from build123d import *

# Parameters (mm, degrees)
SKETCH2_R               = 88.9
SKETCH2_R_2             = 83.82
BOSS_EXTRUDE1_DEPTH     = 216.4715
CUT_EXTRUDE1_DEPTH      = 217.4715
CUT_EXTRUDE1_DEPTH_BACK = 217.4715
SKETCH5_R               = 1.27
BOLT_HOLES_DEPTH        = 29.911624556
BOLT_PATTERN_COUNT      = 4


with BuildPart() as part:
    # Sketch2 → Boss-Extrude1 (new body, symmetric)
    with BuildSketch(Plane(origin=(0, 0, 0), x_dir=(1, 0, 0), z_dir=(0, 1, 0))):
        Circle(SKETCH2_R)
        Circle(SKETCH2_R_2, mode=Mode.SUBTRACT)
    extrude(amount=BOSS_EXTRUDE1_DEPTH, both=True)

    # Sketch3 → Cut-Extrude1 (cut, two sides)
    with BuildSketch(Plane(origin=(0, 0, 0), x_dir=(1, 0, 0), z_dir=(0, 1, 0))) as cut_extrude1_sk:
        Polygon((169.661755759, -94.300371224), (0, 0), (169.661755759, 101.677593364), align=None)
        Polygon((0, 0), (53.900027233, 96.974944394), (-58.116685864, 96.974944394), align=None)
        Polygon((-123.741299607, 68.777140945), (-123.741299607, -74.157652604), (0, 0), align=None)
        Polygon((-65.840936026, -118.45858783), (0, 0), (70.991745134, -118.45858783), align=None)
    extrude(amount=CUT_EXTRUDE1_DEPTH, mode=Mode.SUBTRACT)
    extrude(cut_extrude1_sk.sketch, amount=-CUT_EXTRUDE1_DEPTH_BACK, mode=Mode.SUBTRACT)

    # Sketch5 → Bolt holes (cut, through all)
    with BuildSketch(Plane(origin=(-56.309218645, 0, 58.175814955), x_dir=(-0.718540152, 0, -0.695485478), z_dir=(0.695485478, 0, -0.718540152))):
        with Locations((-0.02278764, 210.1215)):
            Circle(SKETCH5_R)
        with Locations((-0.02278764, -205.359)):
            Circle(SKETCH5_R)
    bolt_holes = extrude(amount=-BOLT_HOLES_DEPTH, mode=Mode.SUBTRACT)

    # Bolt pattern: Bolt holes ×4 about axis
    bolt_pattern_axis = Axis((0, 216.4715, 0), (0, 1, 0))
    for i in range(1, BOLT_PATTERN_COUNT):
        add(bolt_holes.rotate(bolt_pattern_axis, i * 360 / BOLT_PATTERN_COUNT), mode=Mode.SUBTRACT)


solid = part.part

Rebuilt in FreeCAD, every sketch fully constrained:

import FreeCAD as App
import Part
import Sketcher
Q = App.Units.Quantity

doc = App.newDocument("Part")
body = doc.addObject("PartDesign::Body", "Body")
body.AllowCompound = True

sketch1 = body.newObject("Sketcher::SketchObject", "Sketch")
sketch1.AttachmentSupport = (doc.getObject("XZ_Plane"), [""])
sketch1.MapMode = "FlatFace"
sketch1.addGeometry(Part.Circle(App.Vector(0, 0, 0), App.Vector(0, 0, 1), 89), False)
sketch1.addGeometry(Part.Circle(App.Vector(0, 0, 0), App.Vector(0, 0, 1), 84), False)
sketch1.addConstraint(Sketcher.Constraint("Coincident", 0, 3, -1, 1))
sketch1.addConstraint(Sketcher.Constraint("Coincident", 1, 3, -1, 1))
sketch1.addConstraint(Sketcher.Constraint("Diameter", 0, Q("7 in")))
sketch1.addConstraint(Sketcher.Constraint("Diameter", 1, Q("6.6 in")))
pad1 = body.newObject("PartDesign::Pad", "Pad")
pad1.Profile = sketch1
pad1.Length = Q("17.045 in")
pad1.Midplane = True

sketch2 = body.newObject("Sketcher::SketchObject", "Sketch001")
sketch2.AttachmentSupport = (doc.getObject("XZ_Plane"), [""])
sketch2.MapMode = "FlatFace"
sketch2.addGeometry(Part.LineSegment(App.Vector(0, 0, 0), App.Vector(170, 94, 0)), False)
sketch2.addGeometry(Part.LineSegment(App.Vector(170, 94, 0), App.Vector(170, -102, 0)), False)
sketch2.addGeometry(Part.LineSegment(App.Vector(170, -102, 0), App.Vector(0, 0, 0)), False)
sketch2.addGeometry(Part.LineSegment(App.Vector(0, 0, 0), App.Vector(54, -97, 0)), False)
sketch2.addGeometry(Part.LineSegment(App.Vector(54, -97, 0), App.Vector(-58, -97, 0)), False)
sketch2.addGeometry(Part.LineSegment(App.Vector(-58, -97, 0), App.Vector(0, 0, 0)), False)
sketch2.addGeometry(Part.LineSegment(App.Vector(-124, -69, 0), App.Vector(-124, 74, 0)), False)
sketch2.addGeometry(Part.LineSegment(App.Vector(-124, 74, 0), App.Vector(0, 0, 0)), False)
sketch2.addGeometry(Part.LineSegment(App.Vector(0, 0, 0), App.Vector(-124, -69, 0)), False)
sketch2.addGeometry(Part.LineSegment(App.Vector(0, 0, 0), App.Vector(-66, 118, 0)), False)
sketch2.addGeometry(Part.LineSegment(App.Vector(-66, 118, 0), App.Vector(71, 118, 0)), False)
sketch2.addGeometry(Part.LineSegment(App.Vector(71, 118, 0), App.Vector(0, 0, 0)), False)
sketch2.addConstraint(Sketcher.Constraint("Coincident", 0, 2, 1, 1))
sketch2.addConstraint(Sketcher.Constraint("Coincident", 1, 2, 2, 1))
sketch2.addConstraint(Sketcher.Constraint("Coincident", 2, 2, 0, 1))
sketch2.addConstraint(Sketcher.Constraint("Coincident", 3, 2, 4, 1))
sketch2.addConstraint(Sketcher.Constraint("Coincident", 4, 2, 5, 1))
sketch2.addConstraint(Sketcher.Constraint("Coincident", 5, 2, 3, 1))
sketch2.addConstraint(Sketcher.Constraint("Coincident", 6, 2, 7, 1))
sketch2.addConstraint(Sketcher.Constraint("Coincident", 7, 2, 8, 1))
sketch2.addConstraint(Sketcher.Constraint("Coincident", 8, 2, 6, 1))
sketch2.addConstraint(Sketcher.Constraint("Coincident", 9, 2, 10, 1))
sketch2.addConstraint(Sketcher.Constraint("Coincident", 10, 2, 11, 1))
sketch2.addConstraint(Sketcher.Constraint("Coincident", 11, 2, 9, 1))
sketch2.addConstraint(Sketcher.Constraint("Vertical", 1))
sketch2.addConstraint(Sketcher.Constraint("Horizontal", 4))
sketch2.addConstraint(Sketcher.Constraint("Vertical", 6))
sketch2.addConstraint(Sketcher.Constraint("Horizontal", 10))
sketch2.addConstraint(Sketcher.Constraint("Coincident", 2, 2, -1, 1))
sketch2.addConstraint(Sketcher.Constraint("Coincident", 5, 2, -1, 1))
sketch2.addConstraint(Sketcher.Constraint("Coincident", 7, 2, -1, 1))
sketch2.addConstraint(Sketcher.Constraint("Coincident", 11, 2, -1, 1))
sketch2.addConstraint(Sketcher.Constraint("Perpendicular", 0, 3))
sketch2.addConstraint(Sketcher.Constraint("Perpendicular", 2, 5))
sketch2.addConstraint(Sketcher.Constraint("Perpendicular", 5, 7))
sketch2.addConstraint(Sketcher.Constraint("Perpendicular", 3, 8))
sketch2.addConstraint(Sketcher.Constraint("Perpendicular", 8, 9))
sketch2.addConstraint(Sketcher.Constraint("Perpendicular", 7, 11))
sketch2.addConstraint(Sketcher.Constraint("DistanceX", 10, 1, 10, 2, Q("136.832681 mm")))
sketch2.addConstraint(Sketcher.Constraint("DistanceX", 6, 2, -1, 1, Q("123.7413 mm")))
sketch2.addConstraint(Sketcher.Constraint("Distance", 0, Q("194.107371 mm")))
sketch2.addConstraint(Sketcher.Constraint("Distance", 11, Q("138.102371 mm")))
sketch2.addConstraint(Sketcher.Constraint("DistanceX", 4, 2, 4, 1, Q("112.016713 mm")))
sketch2.addConstraint(Sketcher.Constraint("DistanceY", 1, 2, 1, 1, Q("195.977965 mm")))
pocket1 = body.newObject("PartDesign::Pocket", "Pocket")
pocket1.Profile = sketch2
pocket1.Type = "ThroughAll"
pocket1.Midplane = True

sketch3 = body.newObject("Sketcher::SketchObject", "Sketch002")
sketch3.Placement = App.Placement(App.Vector(-56.309219, 0, 58.175815), App.Rotation(App.Vector(-0.718540152, 0, -0.695485478), App.Vector(0, 1, 0), App.Vector(0.695485478, 0, -0.718540152), "ZXY"))
sketch3.addGeometry(Part.Circle(App.Vector(0, 210.1, 0), App.Vector(0, 0, 1), 1.3), False)
sketch3.addGeometry(Part.Circle(App.Vector(0, -205.4, 0), App.Vector(0, 0, 1), 1.3), False)
sketch3.addConstraint(Sketcher.Constraint("Equal", 0, 1))
sketch3.addConstraint(Sketcher.Constraint("Vertical", 0, 3, 1, 3))
sketch3.addConstraint(Sketcher.Constraint("Diameter", 0, Q("0.1 in")))
sketch3.addConstraint(Sketcher.Constraint("DistanceY", 1, 3, -1, 1, Q("8.085 in")))
sketch3.addConstraint(Sketcher.Constraint("DistanceY", -1, 1, 0, 3, Q("8.2725 in")))
sketch3.addConstraint(Sketcher.Constraint("DistanceX", 0, 3, -1, 1, Q("0.022788 mm")))
pocket2 = body.newObject("PartDesign::Pocket", "Pocket001")
pocket2.Profile = sketch3
pocket2.Type = "ThroughAll"
doc.recompute()

polarpattern = body.newObject("PartDesign::PolarPattern", "PolarPattern")
polarpattern.Originals = [pocket2]
polarpattern.Axis = (doc.getObject("Y_Axis"), [""])
polarpattern.Angle = 360
polarpattern.Occurrences = 4
body.Tip = polarpattern

doc.recompute()
